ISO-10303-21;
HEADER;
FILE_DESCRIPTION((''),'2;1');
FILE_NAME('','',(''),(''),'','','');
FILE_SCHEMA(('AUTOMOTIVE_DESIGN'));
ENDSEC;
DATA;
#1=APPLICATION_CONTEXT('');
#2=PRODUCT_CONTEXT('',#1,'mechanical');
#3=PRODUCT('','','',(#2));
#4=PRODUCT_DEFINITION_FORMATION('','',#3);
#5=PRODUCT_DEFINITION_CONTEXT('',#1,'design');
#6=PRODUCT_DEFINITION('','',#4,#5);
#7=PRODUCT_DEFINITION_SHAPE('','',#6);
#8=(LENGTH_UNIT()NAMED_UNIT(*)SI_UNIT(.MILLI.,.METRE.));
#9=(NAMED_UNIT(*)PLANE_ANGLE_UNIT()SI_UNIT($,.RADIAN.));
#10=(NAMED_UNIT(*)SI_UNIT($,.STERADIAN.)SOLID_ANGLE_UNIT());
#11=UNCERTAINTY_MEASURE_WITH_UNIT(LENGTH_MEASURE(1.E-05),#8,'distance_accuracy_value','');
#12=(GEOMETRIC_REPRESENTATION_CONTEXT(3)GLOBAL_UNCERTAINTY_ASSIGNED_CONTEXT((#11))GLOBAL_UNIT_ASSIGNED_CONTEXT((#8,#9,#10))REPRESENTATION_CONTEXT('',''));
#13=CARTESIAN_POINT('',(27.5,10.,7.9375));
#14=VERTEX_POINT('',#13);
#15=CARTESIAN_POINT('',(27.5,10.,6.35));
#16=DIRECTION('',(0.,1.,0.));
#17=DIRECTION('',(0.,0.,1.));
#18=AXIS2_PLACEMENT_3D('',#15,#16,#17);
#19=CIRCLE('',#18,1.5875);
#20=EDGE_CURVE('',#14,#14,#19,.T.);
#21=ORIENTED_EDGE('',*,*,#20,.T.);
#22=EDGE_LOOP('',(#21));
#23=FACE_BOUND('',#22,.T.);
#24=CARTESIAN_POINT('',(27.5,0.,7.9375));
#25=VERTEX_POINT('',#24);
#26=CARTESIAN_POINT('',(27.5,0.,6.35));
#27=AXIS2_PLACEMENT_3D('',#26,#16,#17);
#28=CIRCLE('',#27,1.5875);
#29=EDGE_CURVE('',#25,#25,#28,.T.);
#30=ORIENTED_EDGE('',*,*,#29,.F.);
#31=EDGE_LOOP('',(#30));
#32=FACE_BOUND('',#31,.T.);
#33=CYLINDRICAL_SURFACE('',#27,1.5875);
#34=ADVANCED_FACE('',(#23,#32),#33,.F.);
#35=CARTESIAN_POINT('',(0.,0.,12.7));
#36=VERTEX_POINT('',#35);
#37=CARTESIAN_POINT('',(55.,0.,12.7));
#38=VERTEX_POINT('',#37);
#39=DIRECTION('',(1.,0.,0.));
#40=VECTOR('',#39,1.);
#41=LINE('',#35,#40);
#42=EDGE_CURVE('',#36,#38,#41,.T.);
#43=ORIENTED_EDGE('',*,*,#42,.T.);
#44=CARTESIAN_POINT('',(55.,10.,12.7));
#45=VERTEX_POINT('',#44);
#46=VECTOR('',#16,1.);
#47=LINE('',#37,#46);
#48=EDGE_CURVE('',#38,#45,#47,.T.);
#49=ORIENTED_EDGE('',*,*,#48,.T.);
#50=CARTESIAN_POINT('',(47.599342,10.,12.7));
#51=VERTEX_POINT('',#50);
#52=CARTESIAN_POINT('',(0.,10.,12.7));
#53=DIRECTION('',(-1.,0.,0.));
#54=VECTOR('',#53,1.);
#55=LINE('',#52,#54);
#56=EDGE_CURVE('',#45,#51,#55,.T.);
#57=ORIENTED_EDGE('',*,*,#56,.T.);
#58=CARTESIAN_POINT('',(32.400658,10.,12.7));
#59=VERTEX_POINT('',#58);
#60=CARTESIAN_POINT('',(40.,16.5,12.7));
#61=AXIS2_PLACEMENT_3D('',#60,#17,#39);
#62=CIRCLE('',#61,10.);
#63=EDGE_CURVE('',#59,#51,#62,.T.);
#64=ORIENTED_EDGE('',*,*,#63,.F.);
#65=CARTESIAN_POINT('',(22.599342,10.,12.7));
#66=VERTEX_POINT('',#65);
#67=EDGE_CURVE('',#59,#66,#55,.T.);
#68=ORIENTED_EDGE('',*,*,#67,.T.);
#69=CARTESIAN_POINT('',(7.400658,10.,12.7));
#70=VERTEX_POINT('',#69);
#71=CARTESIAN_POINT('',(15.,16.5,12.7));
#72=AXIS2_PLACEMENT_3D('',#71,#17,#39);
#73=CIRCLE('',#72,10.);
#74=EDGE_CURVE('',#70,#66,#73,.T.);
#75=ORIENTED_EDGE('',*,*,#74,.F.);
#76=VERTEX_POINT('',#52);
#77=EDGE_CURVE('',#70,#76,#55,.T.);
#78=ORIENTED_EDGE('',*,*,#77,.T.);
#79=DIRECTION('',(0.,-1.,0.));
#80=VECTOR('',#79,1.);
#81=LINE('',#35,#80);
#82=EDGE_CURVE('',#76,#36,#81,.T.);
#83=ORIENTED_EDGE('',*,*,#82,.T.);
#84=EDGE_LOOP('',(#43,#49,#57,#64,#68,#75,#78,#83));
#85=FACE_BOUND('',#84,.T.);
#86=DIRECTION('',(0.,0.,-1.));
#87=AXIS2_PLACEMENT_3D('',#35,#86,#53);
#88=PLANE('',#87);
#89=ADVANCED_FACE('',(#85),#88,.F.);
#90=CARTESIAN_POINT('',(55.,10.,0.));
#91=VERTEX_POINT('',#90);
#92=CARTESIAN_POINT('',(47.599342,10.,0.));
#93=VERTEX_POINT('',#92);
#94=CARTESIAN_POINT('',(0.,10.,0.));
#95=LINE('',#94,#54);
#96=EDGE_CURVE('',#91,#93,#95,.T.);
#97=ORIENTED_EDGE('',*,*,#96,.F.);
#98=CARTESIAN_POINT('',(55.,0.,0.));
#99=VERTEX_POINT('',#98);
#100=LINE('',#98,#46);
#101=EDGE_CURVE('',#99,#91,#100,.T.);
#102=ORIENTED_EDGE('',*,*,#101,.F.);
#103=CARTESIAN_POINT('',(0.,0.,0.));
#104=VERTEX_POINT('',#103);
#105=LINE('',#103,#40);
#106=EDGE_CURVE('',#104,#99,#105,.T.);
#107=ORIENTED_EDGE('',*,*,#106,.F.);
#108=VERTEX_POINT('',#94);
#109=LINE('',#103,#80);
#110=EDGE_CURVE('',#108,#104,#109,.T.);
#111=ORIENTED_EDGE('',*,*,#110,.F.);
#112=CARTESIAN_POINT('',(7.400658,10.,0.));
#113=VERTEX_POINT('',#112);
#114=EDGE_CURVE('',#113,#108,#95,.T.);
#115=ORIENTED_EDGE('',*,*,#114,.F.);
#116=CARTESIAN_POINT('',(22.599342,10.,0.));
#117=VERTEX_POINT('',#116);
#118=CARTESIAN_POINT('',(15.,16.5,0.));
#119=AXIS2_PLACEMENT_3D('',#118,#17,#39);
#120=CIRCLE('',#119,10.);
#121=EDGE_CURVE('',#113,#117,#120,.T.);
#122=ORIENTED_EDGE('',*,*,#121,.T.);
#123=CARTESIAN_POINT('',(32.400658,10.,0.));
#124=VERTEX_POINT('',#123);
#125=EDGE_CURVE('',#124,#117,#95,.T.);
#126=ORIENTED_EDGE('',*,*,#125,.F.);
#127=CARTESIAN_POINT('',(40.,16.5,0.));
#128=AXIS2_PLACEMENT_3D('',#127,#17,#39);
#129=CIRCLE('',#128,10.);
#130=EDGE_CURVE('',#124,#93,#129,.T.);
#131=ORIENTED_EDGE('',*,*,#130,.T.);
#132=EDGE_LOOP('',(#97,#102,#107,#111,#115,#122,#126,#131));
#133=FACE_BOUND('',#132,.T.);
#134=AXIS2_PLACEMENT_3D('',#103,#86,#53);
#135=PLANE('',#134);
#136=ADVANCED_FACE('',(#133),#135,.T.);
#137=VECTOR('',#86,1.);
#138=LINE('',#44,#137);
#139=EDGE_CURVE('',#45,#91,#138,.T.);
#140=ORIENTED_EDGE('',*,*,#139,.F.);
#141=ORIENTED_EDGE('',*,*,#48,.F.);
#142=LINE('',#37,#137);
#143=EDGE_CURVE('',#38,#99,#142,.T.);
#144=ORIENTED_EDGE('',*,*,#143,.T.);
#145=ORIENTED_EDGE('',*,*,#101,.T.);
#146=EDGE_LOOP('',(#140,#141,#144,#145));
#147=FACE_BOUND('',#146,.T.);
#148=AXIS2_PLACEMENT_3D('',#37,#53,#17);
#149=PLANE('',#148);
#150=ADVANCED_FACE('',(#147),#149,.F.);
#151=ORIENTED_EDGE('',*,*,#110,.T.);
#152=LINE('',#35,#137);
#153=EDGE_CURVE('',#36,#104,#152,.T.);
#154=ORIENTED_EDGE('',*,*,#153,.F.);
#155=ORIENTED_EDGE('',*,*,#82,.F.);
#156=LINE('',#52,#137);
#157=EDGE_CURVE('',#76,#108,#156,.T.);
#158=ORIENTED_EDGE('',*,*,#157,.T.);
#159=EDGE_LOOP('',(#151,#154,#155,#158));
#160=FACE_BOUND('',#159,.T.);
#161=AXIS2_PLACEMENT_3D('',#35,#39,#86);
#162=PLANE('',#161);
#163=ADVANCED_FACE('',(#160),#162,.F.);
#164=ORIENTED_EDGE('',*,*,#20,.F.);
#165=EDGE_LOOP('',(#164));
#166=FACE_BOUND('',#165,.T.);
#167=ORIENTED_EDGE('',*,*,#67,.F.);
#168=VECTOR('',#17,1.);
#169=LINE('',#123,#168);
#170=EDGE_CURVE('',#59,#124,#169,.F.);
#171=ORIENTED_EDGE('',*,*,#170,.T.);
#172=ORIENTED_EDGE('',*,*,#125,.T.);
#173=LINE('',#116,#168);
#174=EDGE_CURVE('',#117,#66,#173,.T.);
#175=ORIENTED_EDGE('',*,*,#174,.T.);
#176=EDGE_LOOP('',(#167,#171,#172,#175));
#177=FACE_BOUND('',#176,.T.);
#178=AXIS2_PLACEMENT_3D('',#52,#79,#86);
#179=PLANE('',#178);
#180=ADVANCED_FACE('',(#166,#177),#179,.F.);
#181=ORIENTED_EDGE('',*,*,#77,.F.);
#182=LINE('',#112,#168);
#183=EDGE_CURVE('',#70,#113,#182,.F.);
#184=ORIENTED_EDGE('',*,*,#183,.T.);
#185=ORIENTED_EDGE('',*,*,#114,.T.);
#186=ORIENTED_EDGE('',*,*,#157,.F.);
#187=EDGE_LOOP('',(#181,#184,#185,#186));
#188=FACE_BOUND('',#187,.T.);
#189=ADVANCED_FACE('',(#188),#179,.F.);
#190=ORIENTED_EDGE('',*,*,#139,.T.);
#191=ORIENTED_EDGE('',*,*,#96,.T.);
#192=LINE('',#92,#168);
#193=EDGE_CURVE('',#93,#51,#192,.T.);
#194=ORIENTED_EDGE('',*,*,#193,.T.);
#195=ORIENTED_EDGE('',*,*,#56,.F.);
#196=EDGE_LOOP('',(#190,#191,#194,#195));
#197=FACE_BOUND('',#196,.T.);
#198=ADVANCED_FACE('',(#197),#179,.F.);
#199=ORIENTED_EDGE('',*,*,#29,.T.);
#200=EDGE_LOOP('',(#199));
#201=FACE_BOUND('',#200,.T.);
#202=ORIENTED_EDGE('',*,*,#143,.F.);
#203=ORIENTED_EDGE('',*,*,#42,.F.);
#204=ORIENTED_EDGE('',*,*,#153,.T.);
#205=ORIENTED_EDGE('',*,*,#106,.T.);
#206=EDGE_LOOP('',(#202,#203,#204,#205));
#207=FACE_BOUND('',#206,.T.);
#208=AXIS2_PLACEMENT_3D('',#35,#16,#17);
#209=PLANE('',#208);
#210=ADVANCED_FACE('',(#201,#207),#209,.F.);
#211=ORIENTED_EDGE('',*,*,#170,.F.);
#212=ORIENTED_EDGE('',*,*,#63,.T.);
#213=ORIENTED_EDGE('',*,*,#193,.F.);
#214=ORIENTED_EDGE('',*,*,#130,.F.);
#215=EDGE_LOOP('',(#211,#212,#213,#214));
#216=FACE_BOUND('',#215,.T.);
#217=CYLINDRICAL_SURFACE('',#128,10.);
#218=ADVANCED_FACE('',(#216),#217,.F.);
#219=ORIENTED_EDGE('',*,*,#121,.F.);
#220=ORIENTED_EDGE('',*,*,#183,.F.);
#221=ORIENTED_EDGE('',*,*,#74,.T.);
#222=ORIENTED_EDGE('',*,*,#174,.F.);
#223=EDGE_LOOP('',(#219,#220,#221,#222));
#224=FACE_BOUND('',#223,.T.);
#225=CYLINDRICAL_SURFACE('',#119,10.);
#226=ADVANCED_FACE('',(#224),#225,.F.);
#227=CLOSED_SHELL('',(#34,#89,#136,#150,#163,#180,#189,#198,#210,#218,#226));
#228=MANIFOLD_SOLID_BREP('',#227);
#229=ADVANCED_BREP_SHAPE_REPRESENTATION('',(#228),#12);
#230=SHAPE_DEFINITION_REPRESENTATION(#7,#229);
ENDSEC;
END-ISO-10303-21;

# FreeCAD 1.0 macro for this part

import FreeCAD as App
import Part
import Sketcher
from FreeCAD import Vector

doc = App.newDocument("Part")
body = doc.addObject("PartDesign::Body", "Body")

# Sketch on XY plane
sketch1 = body.newObject("Sketcher::SketchObject", "Sketch")
sketch1.AttachmentSupport = (doc.getObject("XY_Plane"), [""])
sketch1.MapMode = "FlatFace"
sketch1.addGeometry(Part.LineSegment(Vector(0, 10, 0), Vector(0, 0, 0)), False)
sketch1.addGeometry(Part.LineSegment(Vector(0, 0, 0), Vector(55, 0, 0)), False)
sketch1.addGeometry(Part.LineSegment(Vector(55, 0, 0), Vector(55, 10, 0)), False)
sketch1.addGeometry(Part.LineSegment(Vector(55, 10, 0), Vector(0, 10, 0)), False)
sketch1.addConstraint(Sketcher.Constraint("Coincident", 0, 2, 1, 1))
sketch1.addConstraint(Sketcher.Constraint("Coincident", 1, 2, 2, 1))
sketch1.addConstraint(Sketcher.Constraint("Coincident", 2, 2, 3, 1))
sketch1.addConstraint(Sketcher.Constraint("Coincident", 3, 2, 0, 1))
sketch1.addConstraint(Sketcher.Constraint("Vertical", 0))
sketch1.addConstraint(Sketcher.Constraint("Horizontal", 1))
sketch1.addConstraint(Sketcher.Constraint("Vertical", 2))
sketch1.addConstraint(Sketcher.Constraint("Horizontal", 3))
sketch1.addConstraint(Sketcher.Constraint("Coincident", 0, 2, -1, 1))
sketch1.addConstraint(Sketcher.Constraint("DistanceX", 1, 1, 1, 2, 55.0))
sketch1.addConstraint(Sketcher.Constraint("DistanceY", 0, 2, 0, 1, 10.0))
pad1 = body.newObject("PartDesign::Pad", "Pad")
pad1.Profile = sketch1
pad1.Length = 12.7

# Sketch on XY plane
sketch2 = body.newObject("Sketcher::SketchObject", "Sketch001")
sketch2.AttachmentSupport = (doc.getObject("XY_Plane"), [""])
sketch2.MapMode = "FlatFace"
sketch2.AttachmentOffset = App.Placement(Vector(0, 0, 12.7), App.Rotation())
sketch2.addGeometry(Part.Circle(Vector(15, 16, 0), Vector(0, 0, 1), 10), False)
sketch2.addGeometry(Part.Circle(Vector(40, 16, 0), Vector(0, 0, 1), 10), False)
sketch2.addConstraint(Sketcher.Constraint("Equal", 0, 1))
sketch2.addConstraint(Sketcher.Constraint("Horizontal", 0, 3, 1, 3))
sketch2.addConstraint(Sketcher.Constraint("Diameter", 0, 20.0))
sketch2.addConstraint(Sketcher.Constraint("DistanceX", -1, 1, 0, 3, 15.0))
sketch2.addConstraint(Sketcher.Constraint("DistanceX", -1, 1, 1, 3, 40.0))
sketch2.addConstraint(Sketcher.Constraint("DistanceY", -1, 1, 0, 3, 16.5))
pocket1 = body.newObject("PartDesign::Pocket", "Pocket")
pocket1.Profile = sketch2
pocket1.Type = "ThroughAll"

# Sketch on XZ plane
sketch3 = body.newObject("Sketcher::SketchObject", "Sketch002")
sketch3.AttachmentSupport = (doc.getObject("XZ_Plane"), [""])
sketch3.MapMode = "FlatFace"
sketch3.AttachmentOffset = App.Placement(Vector(0, 0, -10), App.Rotation())
sketch3.addGeometry(Part.Circle(Vector(27.5, 6.3, 0), Vector(0, 0, 1), 1.6), False)
sketch3.addConstraint(Sketcher.Constraint("Diameter", 0, 3.175))
sketch3.addConstraint(Sketcher.Constraint("DistanceX", -1, 1, 0, 3, 27.5))
sketch3.addConstraint(Sketcher.Constraint("DistanceY", -1, 1, 0, 3, 6.35))
pocket2 = body.newObject("PartDesign::Pocket", "Pocket001")
pocket2.Profile = sketch3
pocket2.Type = "ThroughAll"
pocket2.Reversed = True

doc.recompute()
